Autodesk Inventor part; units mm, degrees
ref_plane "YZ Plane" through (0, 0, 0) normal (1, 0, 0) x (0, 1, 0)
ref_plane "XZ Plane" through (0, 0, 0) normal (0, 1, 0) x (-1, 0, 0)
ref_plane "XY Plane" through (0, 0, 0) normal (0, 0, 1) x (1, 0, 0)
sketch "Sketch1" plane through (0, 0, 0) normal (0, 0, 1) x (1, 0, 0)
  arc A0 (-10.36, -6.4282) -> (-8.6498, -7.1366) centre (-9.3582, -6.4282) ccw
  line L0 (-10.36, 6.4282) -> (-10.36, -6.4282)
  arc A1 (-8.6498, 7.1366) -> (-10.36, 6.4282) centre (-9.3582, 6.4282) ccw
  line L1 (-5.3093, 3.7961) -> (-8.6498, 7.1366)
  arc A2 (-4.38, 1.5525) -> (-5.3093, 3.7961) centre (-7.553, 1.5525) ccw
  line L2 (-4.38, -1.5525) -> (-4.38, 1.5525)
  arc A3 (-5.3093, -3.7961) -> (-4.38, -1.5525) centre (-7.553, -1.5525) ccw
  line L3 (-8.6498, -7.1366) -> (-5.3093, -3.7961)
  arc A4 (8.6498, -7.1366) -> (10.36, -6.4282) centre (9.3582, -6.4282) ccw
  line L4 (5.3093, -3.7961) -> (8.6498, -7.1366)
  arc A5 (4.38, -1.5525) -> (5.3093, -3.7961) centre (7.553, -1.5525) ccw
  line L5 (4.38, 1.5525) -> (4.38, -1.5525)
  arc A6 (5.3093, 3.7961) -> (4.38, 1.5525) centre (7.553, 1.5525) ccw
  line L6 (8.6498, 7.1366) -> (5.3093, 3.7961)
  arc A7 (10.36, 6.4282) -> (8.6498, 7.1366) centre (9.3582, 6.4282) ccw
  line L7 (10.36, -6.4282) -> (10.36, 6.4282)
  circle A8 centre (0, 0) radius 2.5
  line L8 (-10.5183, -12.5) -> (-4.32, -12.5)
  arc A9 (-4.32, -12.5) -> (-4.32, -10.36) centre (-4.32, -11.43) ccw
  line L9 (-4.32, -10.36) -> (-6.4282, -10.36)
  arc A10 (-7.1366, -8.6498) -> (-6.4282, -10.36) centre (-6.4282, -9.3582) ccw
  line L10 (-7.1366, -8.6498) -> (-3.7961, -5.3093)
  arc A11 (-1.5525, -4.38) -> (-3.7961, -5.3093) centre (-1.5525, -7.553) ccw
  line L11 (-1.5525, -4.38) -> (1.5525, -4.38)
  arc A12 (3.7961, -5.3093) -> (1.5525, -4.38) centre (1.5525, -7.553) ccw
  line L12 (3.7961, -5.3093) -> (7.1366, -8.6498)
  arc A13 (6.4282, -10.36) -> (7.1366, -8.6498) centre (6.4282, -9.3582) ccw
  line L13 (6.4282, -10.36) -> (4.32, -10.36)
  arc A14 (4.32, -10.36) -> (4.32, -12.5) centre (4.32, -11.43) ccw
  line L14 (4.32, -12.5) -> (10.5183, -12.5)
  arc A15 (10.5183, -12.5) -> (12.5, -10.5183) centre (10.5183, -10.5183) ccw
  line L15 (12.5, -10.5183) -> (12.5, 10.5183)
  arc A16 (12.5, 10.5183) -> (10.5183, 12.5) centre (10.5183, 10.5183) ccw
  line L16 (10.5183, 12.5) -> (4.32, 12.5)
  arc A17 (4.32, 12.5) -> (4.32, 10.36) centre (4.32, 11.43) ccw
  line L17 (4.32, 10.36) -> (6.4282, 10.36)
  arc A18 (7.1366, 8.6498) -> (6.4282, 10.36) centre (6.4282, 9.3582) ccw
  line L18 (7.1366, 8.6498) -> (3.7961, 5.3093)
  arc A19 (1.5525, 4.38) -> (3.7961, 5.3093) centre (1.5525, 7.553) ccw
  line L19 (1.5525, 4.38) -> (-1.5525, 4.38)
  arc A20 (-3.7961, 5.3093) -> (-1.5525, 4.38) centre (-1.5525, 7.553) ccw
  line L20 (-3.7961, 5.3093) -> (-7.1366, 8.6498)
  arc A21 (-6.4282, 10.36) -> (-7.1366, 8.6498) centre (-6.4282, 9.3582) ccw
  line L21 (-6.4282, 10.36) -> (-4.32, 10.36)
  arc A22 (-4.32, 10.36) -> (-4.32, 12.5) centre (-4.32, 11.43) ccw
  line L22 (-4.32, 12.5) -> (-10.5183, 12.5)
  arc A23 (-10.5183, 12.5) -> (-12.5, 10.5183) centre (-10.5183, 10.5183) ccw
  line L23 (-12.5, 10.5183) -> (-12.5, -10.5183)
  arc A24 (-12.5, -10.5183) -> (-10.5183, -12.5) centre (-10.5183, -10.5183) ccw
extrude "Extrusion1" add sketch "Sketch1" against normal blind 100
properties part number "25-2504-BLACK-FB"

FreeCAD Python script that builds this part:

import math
import FreeCAD as App
import Part
import Sketcher
from FreeCAD import Vector
Q = App.Units.Quantity

doc = App.newDocument("Part")
params = doc.addObject("Spreadsheet::Sheet", "Params")
for row, (alias, value) in enumerate([
    ("sketch1_width", "0.083 in"),
    ("sketch1_length", "0.186 in"),
    ("pad1_length", "3.9370079 in"),
], start=1):
    params.set(f"A{row}", alias)
    params.set(f"B{row}", "=" + value)
    params.setAlias(f"B{row}", alias)

body = doc.addObject("PartDesign::Body", "Body")

# Sketch on XY plane
sketch1 = body.newObject("Sketcher::SketchObject", "Sketch")
sketch1.AttachmentSupport = (doc.getObject("XY_Plane"), [""])
sketch1.MapMode = "FlatFace"
sketch1.addGeometry(Part.ArcOfCircle(Part.Circle(Vector(-10.5183, -10.5183, 0), Vector(0, 0, 1), 1.9817), math.radians(180), math.radians(270)), False)
sketch1.addGeometry(Part.LineSegment(Vector(-10.5183, -12.5, 0), Vector(-4.32, -12.5, 0)), False)
sketch1.addGeometry(Part.ArcOfCircle(Part.Circle(Vector(-4.32, -11.43, 0), Vector(0, 0, 1), 1.07), math.radians(-90), math.radians(90)), False)
sketch1.addGeometry(Part.LineSegment(Vector(-4.32, -10.36, 0), Vector(-6.4282, -10.36, 0)), False)
sketch1.addGeometry(Part.ArcOfCircle(Part.Circle(Vector(-6.4282, -9.3582, 0), Vector(0, 0, 1), 1.001829), math.radians(135), math.radians(270)), False)
sketch1.addGeometry(Part.LineSegment(Vector(-7.1366, -8.6498, 0), Vector(-3.7961, -5.3093, 0)), False)
sketch1.addGeometry(Part.ArcOfCircle(Part.Circle(Vector(-1.5525, -7.553, 0), Vector(0, 0, 1), 3.173), math.radians(90), math.radians(134.998723)), False)
sketch1.addGeometry(Part.LineSegment(Vector(-1.5525, -4.38, 0), Vector(1.5525, -4.38, 0)), False)
sketch1.addGeometry(Part.ArcOfCircle(Part.Circle(Vector(1.5525, -7.553, 0), Vector(0, 0, 1), 3.173), math.radians(45.001277), math.radians(90)), False)
sketch1.addGeometry(Part.LineSegment(Vector(3.7961, -5.3093, 0), Vector(7.1366, -8.6498, 0)), False)
sketch1.addGeometry(Part.ArcOfCircle(Part.Circle(Vector(6.4282, -9.3582, 0), Vector(0, 0, 1), 1.0018), math.radians(-90), math.radians(45)), False)
sketch1.addGeometry(Part.LineSegment(Vector(6.4282, -10.36, 0), Vector(4.32, -10.36, 0)), False)
sketch1.addGeometry(Part.ArcOfCircle(Part.Circle(Vector(4.32, -11.43, 0), Vector(0, 0, 1), 1.07), math.radians(90), math.radians(270)), False)
sketch1.addGeometry(Part.LineSegment(Vector(4.32, -12.5, 0), Vector(10.5183, -12.5, 0)), False)
sketch1.addGeometry(Part.ArcOfCircle(Part.Circle(Vector(10.5183, -10.5183, 0), Vector(0, 0, 1), 1.9817), math.radians(-90), math.radians(0)), False)
sketch1.addGeometry(Part.LineSegment(Vector(12.5, -10.5183, 0), Vector(12.5, 10.5183, 0)), False)
sketch1.addGeometry(Part.ArcOfCircle(Part.Circle(Vector(10.5183, 10.5183, 0), Vector(0, 0, 1), 1.9817), math.radians(0), math.radians(90)), False)
sketch1.addGeometry(Part.LineSegment(Vector(10.5183, 12.5, 0), Vector(4.32, 12.5, 0)), False)
sketch1.addGeometry(Part.ArcOfCircle(Part.Circle(Vector(4.32, 11.43, 0), Vector(0, 0, 1), 1.07), math.radians(90), math.radians(270)), False)
sketch1.addGeometry(Part.LineSegment(Vector(4.32, 10.36, 0), Vector(6.4282, 10.36, 0)), False)
sketch1.addGeometry(Part.ArcOfCircle(Part.Circle(Vector(6.4282, 9.3582, 0), Vector(0, 0, 1), 1.001829), math.radians(-45), math.radians(90)), False)
sketch1.addGeometry(Part.LineSegment(Vector(7.1366, 8.6498, 0), Vector(3.7961, 5.3093, 0)), False)
sketch1.addGeometry(Part.ArcOfCircle(Part.Circle(Vector(1.5525, 7.553, 0), Vector(0, 0, 1), 3.173), math.radians(-90), math.radians(-45.001277)), False)
sketch1.addGeometry(Part.LineSegment(Vector(1.5525, 4.38, 0), Vector(-1.5525, 4.38, 0)), False)
sketch1.addGeometry(Part.ArcOfCircle(Part.Circle(Vector(-1.5525, 7.553, 0), Vector(0, 0, 1), 3.173), math.radians(-134.998723), math.radians(-90)), False)
sketch1.addGeometry(Part.LineSegment(Vector(-3.7961, 5.3093, 0), Vector(-7.1366, 8.6498, 0)), False)
sketch1.addGeometry(Part.ArcOfCircle(Part.Circle(Vector(-6.4282, 9.3582, 0), Vector(0, 0, 1), 1.0018), math.radians(90), math.radians(225)), False)
sketch1.addGeometry(Part.LineSegment(Vector(-6.4282, 10.36, 0), Vector(-4.32, 10.36, 0)), False)
sketch1.addGeometry(Part.ArcOfCircle(Part.Circle(Vector(-4.32, 11.43, 0), Vector(0, 0, 1), 1.07), math.radians(-90), math.radians(90)), False)
sketch1.addGeometry(Part.LineSegment(Vector(-4.32, 12.5, 0), Vector(-10.5183, 12.5, 0)), False)
sketch1.addGeometry(Part.ArcOfCircle(Part.Circle(Vector(-10.5183, 10.5183, 0), Vector(0, 0, 1), 1.9817), math.radians(90), math.radians(180)), False)
sketch1.addGeometry(Part.LineSegment(Vector(-12.5, 10.5183, 0), Vector(-12.5, -10.5183, 0)), False)
sketch1.addGeometry(Part.ArcOfCircle(Part.Circle(Vector(9.3582, -6.4282, 0), Vector(0, 0, 1), 1.001829), math.radians(-135), math.radians(0)), False)
sketch1.addGeometry(Part.LineSegment(Vector(8.6498, -7.1366, 0), Vector(5.3093, -3.7961, 0)), False)
sketch1.addGeometry(Part.ArcOfCircle(Part.Circle(Vector(7.553, -1.5525, 0), Vector(0, 0, 1), 3.173), math.radians(180), math.radians(224.998723)), False)
sketch1.addGeometry(Part.LineSegment(Vector(4.38, -1.5525, 0), Vector(4.38, 1.5525, 0)), False)
sketch1.addGeometry(Part.ArcOfCircle(Part.Circle(Vector(7.553, 1.5525, 0), Vector(0, 0, 1), 3.173), math.radians(135.001277), math.radians(180)), False)
sketch1.addGeometry(Part.LineSegment(Vector(5.3093, 3.7961, 0), Vector(8.6498, 7.1366, 0)), False)
sketch1.addGeometry(Part.ArcOfCircle(Part.Circle(Vector(9.3582, 6.4282, 0), Vector(0, 0, 1), 1.0018), math.radians(0), math.radians(135)), False)
sketch1.addGeometry(Part.LineSegment(Vector(10.36, 6.4282, 0), Vector(10.36, -6.4282, 0)), False)
sketch1.addGeometry(Part.ArcOfCircle(Part.Circle(Vector(-9.3582, -6.4282, 0), Vector(0, 0, 1), 1.0018), math.radians(180), math.radians(315)), False)
sketch1.addGeometry(Part.LineSegment(Vector(-10.36, -6.4282, 0), Vector(-10.36, 6.4282, 0)), False)
sketch1.addGeometry(Part.ArcOfCircle(Part.Circle(Vector(-9.3582, 6.4282, 0), Vector(0, 0, 1), 1.001829), math.radians(45), math.radians(180)), False)
sketch1.addGeometry(Part.LineSegment(Vector(-8.6498, 7.1366, 0), Vector(-5.3093, 3.7961, 0)), False)
sketch1.addGeometry(Part.ArcOfCircle(Part.Circle(Vector(-7.553, 1.5525, 0), Vector(0, 0, 1), 3.173), math.radians(0), math.radians(44.998723)), False)
sketch1.addGeometry(Part.LineSegment(Vector(-4.38, 1.5525, 0), Vector(-4.38, -1.5525, 0)), False)
sketch1.addGeometry(Part.ArcOfCircle(Part.Circle(Vector(-7.553, -1.5525, 0), Vector(0, 0, 1), 3.173), math.radians(-44.998723), math.radians(0)), False)
sketch1.addGeometry(Part.LineSegment(Vector(-5.3093, -3.7961, 0), Vector(-8.6498, -7.1366, 0)), False)
sketch1.addGeometry(Part.Circle(Vector(0, 0, 0), Vector(0, 0, 1), 2.5), False)
sketch1.addConstraint(Sketcher.Constraint("Tangent", 0, 2, 1, 1))
sketch1.addConstraint(Sketcher.Constraint("Tangent", 1, 2, 2, 1))
sketch1.addConstraint(Sketcher.Constraint("Tangent", 2, 2, 3, 1))
sketch1.addConstraint(Sketcher.Constraint("Tangent", 3, 2, 4, 2))
sketch1.addConstraint(Sketcher.Constraint("Tangent", 4, 1, 5, 1))
sketch1.addConstraint(Sketcher.Constraint("Tangent", 5, 2, 6, 2))
sketch1.addConstraint(Sketcher.Constraint("Tangent", 6, 1, 7, 1))
sketch1.addConstraint(Sketcher.Constraint("Tangent", 7, 2, 8, 2))
sketch1.addConstraint(Sketcher.Constraint("Tangent", 8, 1, 9, 1))
sketch1.addConstraint(Sketcher.Constraint("Tangent", 9, 2, 10, 2))
sketch1.addConstraint(Sketcher.Constraint("Tangent", 10, 1, 11, 1))
sketch1.addConstraint(Sketcher.Constraint("Tangent", 11, 2, 12, 1))
sketch1.addConstraint(Sketcher.Constraint("Tangent", 12, 2, 13, 1))
sketch1.addConstraint(Sketcher.Constraint("Tangent", 13, 2, 14, 1))
sketch1.addConstraint(Sketcher.Constraint("Tangent", 14, 2, 15, 1))
sketch1.addConstraint(Sketcher.Constraint("Tangent", 15, 2, 16, 1))
sketch1.addConstraint(Sketcher.Constraint("Tangent", 16, 2, 17, 1))
sketch1.addConstraint(Sketcher.Constraint("Tangent", 17, 2, 18, 1))
sketch1.addConstraint(Sketcher.Constraint("Tangent", 18, 2, 19, 1))
sketch1.addConstraint(Sketcher.Constraint("Tangent", 19, 2, 20, 2))
sketch1.addConstraint(Sketcher.Constraint("Tangent", 20, 1, 21, 1))
sketch1.addConstraint(Sketcher.Constraint("Tangent", 21, 2, 22, 2))
sketch1.addConstraint(Sketcher.Constraint("Tangent", 22, 1, 23, 1))
sketch1.addConstraint(Sketcher.Constraint("Tangent", 23, 2, 24, 2))
sketch1.addConstraint(Sketcher.Constraint("Tangent", 24, 1, 25, 1))
sketch1.addConstraint(Sketcher.Constraint("Tangent", 25, 2, 26, 2))
sketch1.addConstraint(Sketcher.Constraint("Tangent", 26, 1, 27, 1))
sketch1.addConstraint(Sketcher.Constraint("Tangent", 27, 2, 28, 1))
sketch1.addConstraint(Sketcher.Constraint("Tangent", 28, 2, 29, 1))
sketch1.addConstraint(Sketcher.Constraint("Tangent", 29, 2, 30, 1))
sketch1.addConstraint(Sketcher.Constraint("Tangent", 30, 2, 31, 1))
sketch1.addConstraint(Sketcher.Constraint("Tangent", 31, 2, 0, 1))
sketch1.addConstraint(Sketcher.Constraint("Tangent", 32, 1, 33, 1))
sketch1.addConstraint(Sketcher.Constraint("Tangent", 33, 2, 34, 2))
sketch1.addConstraint(Sketcher.Constraint("Tangent", 34, 1, 35, 1))
sketch1.addConstraint(Sketcher.Constraint("Tangent", 35, 2, 36, 2))
sketch1.addConstraint(Sketcher.Constraint("Tangent", 36, 1, 37, 1))
sketch1.addConstraint(Sketcher.Constraint("Tangent", 37, 2, 38, 2))
sketch1.addConstraint(Sketcher.Constraint("Tangent", 38, 1, 39, 1))
sketch1.addConstraint(Sketcher.Constraint("Tangent", 39, 2, 32, 2))
sketch1.addConstraint(Sketcher.Constraint("Tangent", 40, 1, 41, 1))
sketch1.addConstraint(Sketcher.Constraint("Tangent", 41, 2, 42, 2))
sketch1.addConstraint(Sketcher.Constraint("Tangent", 42, 1, 43, 1))
sketch1.addConstraint(Sketcher.Constraint("Tangent", 43, 2, 44, 2))
sketch1.addConstraint(Sketcher.Constraint("Tangent", 44, 1, 45, 1))
sketch1.addConstraint(Sketcher.Constraint("Tangent", 45, 2, 46, 2))
sketch1.addConstraint(Sketcher.Constraint("Tangent", 46, 1, 47, 1))
sketch1.addConstraint(Sketcher.Constraint("Tangent", 47, 2, 40, 2))
sketch1.addConstraint(Sketcher.Constraint("Horizontal", 1))
sketch1.addConstraint(Sketcher.Constraint("Horizontal", 3))
sketch1.addConstraint(Sketcher.Constraint("Horizontal", 7))
sketch1.addConstraint(Sketcher.Constraint("Horizontal", 11))
sketch1.addConstraint(Sketcher.Constraint("Horizontal", 13))
sketch1.addConstraint(Sketcher.Constraint("Vertical", 15))
sketch1.addConstraint(Sketcher.Constraint("Horizontal", 17))
sketch1.addConstraint(Sketcher.Constraint("Horizontal", 19))
sketch1.addConstraint(Sketcher.Constraint("Horizontal", 23))
sketch1.addConstraint(Sketcher.Constraint("Horizontal", 27))
sketch1.addConstraint(Sketcher.Constraint("Horizontal", 29))
sketch1.addConstraint(Sketcher.Constraint("Vertical", 31))
sketch1.addConstraint(Sketcher.Constraint("Vertical", 35))
sketch1.addConstraint(Sketcher.Constraint("Vertical", 39))
sketch1.addConstraint(Sketcher.Constraint("Vertical", 41))
sketch1.addConstraint(Sketcher.Constraint("Vertical", 45))
sketch1.addConstraint(Sketcher.Constraint("Coincident", 48, 3, -1, 1))
sketch1.addConstraint(Sketcher.Constraint("Equal", 6, 8))
sketch1.addConstraint(Sketcher.Constraint("Equal", 4, 10))
sketch1.addConstraint(Sketcher.Constraint("Equal", 2, 12))
sketch1.addConstraint(Sketcher.Constraint("Equal", 0, 14))
sketch1.addConstraint(Sketcher.Constraint("Equal", 14, 16))
sketch1.addConstraint(Sketcher.Constraint("Equal", 12, 18))
sketch1.addConstraint(Sketcher.Constraint("Equal", 10, 20))
sketch1.addConstraint(Sketcher.Constraint("Equal", 8, 22))
sketch1.addConstraint(Sketcher.Constraint("Equal", 22, 24))
sketch1.addConstraint(Sketcher.Constraint("Equal", 20, 26))
sketch1.addConstraint(Sketcher.Constraint("Equal", 18, 28))
sketch1.addConstraint(Sketcher.Constraint("Equal", 16, 30))
sketch1.addConstraint(Sketcher.Constraint("Equal", 26, 32))
sketch1.addConstraint(Sketcher.Constraint("Equal", 24, 34))
sketch1.addConstraint(Sketcher.Constraint("Equal", 34, 36))
sketch1.addConstraint(Sketcher.Constraint("Equal", 32, 38))
sketch1.addConstraint(Sketcher.Constraint("Equal", 38, 40))
sketch1.addConstraint(Sketcher.Constraint("Equal", 40, 42))
sketch1.addConstraint(Sketcher.Constraint("Equal", 36, 44))
sketch1.addConstraint(Sketcher.Constraint("Equal", 44, 46))
sketch1.addConstraint(Sketcher.Constraint("Symmetric", 0, 3, 16, 3, -1, 1))
sketch1.addConstraint(Sketcher.Constraint("Symmetric", 6, 3, 22, 3, -1, 1))
sketch1.addConstraint(Sketcher.Constraint("Symmetric", 10, 3, 26, 3, -1, 1))
sketch1.addConstraint(Sketcher.Constraint("Symmetric", 38, 3, 40, 3, -1, 1))
sketch1.addConstraint(Sketcher.Constraint("Symmetric", 34, 3, 44, 3, -1, 1))
sketch1.addConstraint(Sketcher.Constraint("Symmetric", 4, 3, 10, 3, -2))
sketch1.addConstraint(Sketcher.Constraint("Symmetric", 21, 2, 24, 1, -2))
sketch1.addConstraint(Sketcher.Constraint("Symmetric", 37, 2, 42, 1, -2))
sketch1.addConstraint(Sketcher.Constraint("Symmetric", 33, 2, 46, 1, -2))
sketch1.addConstraint(Sketcher.Constraint("Perpendicular", 5, 9))
sketch1.addConstraint(Sketcher.Constraint("Perpendicular", 21, 25))
sketch1.addConstraint(Sketcher.Constraint("Parallel", 25, 33))
sketch1.addConstraint(Sketcher.Constraint("Vertical", 12, 3, 18, 3))
sketch1.addConstraint(Sketcher.Constraint("Vertical", 2, 3, 28, 3))
sketch1.addConstraint(Sketcher.Constraint("Equal", 3, 11))
sketch1.addConstraint(Sketcher.Constraint("Equal", 23, 35))
sketch1.addConstraint(Sketcher.Constraint("Equal", 25, 33))
sketch1.addConstraint(Sketcher.Constraint("Diameter", 48, 5.0))
sketch1.addConstraint(Sketcher.Constraint("DistanceX", 3, 2, 3, 1, Q("0.083 in")))
sketch1.addConstraint(Sketcher.Constraint("DistanceY", 2, 3, -1, 1, Q("0.45 in")))
sketch1.addConstraint(Sketcher.Constraint("Radius", 0, 1.9817))
sketch1.addConstraint(Sketcher.Constraint("Radius", 2, 1.07))
sketch1.addConstraint(Sketcher.Constraint("Radius", 4, 1.0018))
sketch1.addConstraint(Sketcher.Constraint("Radius", 6, 3.173))
sketch1.addConstraint(Sketcher.Constraint("Distance", 5, Q("0.186 in")))
sketch1.addConstraint(Sketcher.Constraint("DistanceX", 1, 1, 1, 2, 6.1983))
sketch1.addConstraint(Sketcher.Constraint("DistanceX", 7, 1, 7, 2, 3.105))
sketch1.addConstraint(Sketcher.Constraint("DistanceX", -1, 1, 32, 3, 9.3582))
sketch1.setExpression("Constraints[103]", "Params.sketch1_width")
sketch1.setExpression("Constraints[109]", "Params.sketch1_length")
pad1 = body.newObject("PartDesign::Pad", "Pad")
pad1.Profile = sketch1
pad1.setExpression("Length", "Params.pad1_length")
pad1.Reversed = True

doc.recompute()
